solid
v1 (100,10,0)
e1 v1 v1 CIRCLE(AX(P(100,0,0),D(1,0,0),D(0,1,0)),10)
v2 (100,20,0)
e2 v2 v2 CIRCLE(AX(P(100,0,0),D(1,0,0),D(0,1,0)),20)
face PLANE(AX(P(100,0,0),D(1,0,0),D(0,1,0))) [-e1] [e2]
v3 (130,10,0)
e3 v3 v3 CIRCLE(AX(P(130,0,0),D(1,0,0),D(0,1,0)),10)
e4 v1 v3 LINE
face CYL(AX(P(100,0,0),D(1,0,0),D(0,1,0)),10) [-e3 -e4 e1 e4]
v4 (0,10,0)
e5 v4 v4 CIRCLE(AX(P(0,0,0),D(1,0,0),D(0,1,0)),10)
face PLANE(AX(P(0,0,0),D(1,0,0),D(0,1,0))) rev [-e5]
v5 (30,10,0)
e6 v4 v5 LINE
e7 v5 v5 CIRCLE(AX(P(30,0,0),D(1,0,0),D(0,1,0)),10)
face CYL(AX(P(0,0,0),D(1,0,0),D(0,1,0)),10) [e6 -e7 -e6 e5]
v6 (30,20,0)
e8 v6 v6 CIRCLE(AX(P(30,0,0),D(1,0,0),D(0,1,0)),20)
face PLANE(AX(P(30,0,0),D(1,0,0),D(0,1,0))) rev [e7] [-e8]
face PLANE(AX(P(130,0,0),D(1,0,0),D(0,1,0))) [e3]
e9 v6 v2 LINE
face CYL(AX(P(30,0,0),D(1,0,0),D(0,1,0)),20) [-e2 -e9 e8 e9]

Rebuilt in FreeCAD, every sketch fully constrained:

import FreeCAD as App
import Part
import Sketcher
from FreeCAD import Vector
Q = App.Units.Quantity


def add_polygon(sketch, points):
    """Adds a closed chain of lines whose ends are joined by coincident constraints."""
    first, n = sketch.GeometryCount, len(points)
    for a, b in zip(points, points[1:] + points[:1]):
        sketch.addGeometry(Part.LineSegment(App.Vector(*a, 0), App.Vector(*b, 0)), False)
    for i in range(n):
        sketch.addConstraint(Sketcher.Constraint("Coincident", first + i, 2, first + (i + 1) % n, 1))

doc = App.newDocument("Part")
body = doc.addObject("PartDesign::Body", "Body")

# Sketch on XY plane
sketch1 = body.newObject("Sketcher::SketchObject", "Sketch")
sketch1.AttachmentSupport = (doc.getObject("XY_Plane"), [""])
sketch1.MapMode = "FlatFace"
add_polygon(sketch1, [(0, 10), (0, 0), (130, 0), (130, 10), (100, 10), (100, 20), (30, 20), (30, 10)])  # lines 0-7
sketch1.addConstraint([
    Sketcher.Constraint("Vertical", 0),
    Sketcher.Constraint("Horizontal", 1),
    Sketcher.Constraint("Vertical", 2),
    Sketcher.Constraint("Horizontal", 3),
    Sketcher.Constraint("Vertical", 4),
    Sketcher.Constraint("Horizontal", 5),
    Sketcher.Constraint("Vertical", 6),
    Sketcher.Constraint("Horizontal", 7),
    Sketcher.Constraint("Coincident", 0, 2, -1, 1),
    Sketcher.Constraint("Horizontal", 3, 2, 6, 2),
    Sketcher.Constraint("Equal", 3, 7),
    Sketcher.Constraint("Equal", 2, 4),
    Sketcher.Constraint("DistanceX", 1, 1, 1, 2, Q("130 mm")),
    Sketcher.Constraint("DistanceX", 3, 2, 3, 1, Q("30 mm")),
    Sketcher.Constraint("DistanceY", 0, 2, 0, 1, Q("10 mm")),
])
revolution = body.newObject("PartDesign::Revolution", "Revolution")
revolution.Profile = sketch1
revolution.ReferenceAxis = (sketch1, ["H_Axis"])
revolution.Angle = 360

doc.recompute()
